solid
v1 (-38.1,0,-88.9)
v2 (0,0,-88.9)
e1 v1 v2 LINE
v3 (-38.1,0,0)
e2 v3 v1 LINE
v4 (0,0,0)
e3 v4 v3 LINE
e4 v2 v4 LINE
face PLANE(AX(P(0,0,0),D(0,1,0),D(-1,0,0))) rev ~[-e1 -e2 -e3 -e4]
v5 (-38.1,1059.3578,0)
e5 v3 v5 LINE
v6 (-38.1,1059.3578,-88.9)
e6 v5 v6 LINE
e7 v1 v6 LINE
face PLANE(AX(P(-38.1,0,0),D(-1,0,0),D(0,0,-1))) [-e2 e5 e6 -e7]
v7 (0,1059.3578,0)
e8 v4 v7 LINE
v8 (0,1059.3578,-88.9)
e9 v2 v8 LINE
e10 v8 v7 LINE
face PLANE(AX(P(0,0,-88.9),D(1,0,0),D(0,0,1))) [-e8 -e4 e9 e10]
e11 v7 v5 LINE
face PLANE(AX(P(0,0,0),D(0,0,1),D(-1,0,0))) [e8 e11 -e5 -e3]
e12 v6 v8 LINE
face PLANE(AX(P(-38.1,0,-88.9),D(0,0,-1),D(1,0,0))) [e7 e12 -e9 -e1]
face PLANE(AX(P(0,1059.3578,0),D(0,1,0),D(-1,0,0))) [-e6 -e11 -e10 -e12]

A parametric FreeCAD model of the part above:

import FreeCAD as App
import Part
import Sketcher
Q = App.Units.Quantity

doc = App.newDocument("Part")
params = doc.addObject("Spreadsheet::Sheet", "Params")
for row, (alias, value) in enumerate([
    ("sketch1_width", "1.5 in"),
    ("sketch1_height", "3.5 in"),
    ("pad1_length", "41.707 in"),
], start=1):
    params.set(f"A{row}", alias)
    params.set(f"B{row}", "=" + value)
    params.setAlias(f"B{row}", alias)

body = doc.addObject("PartDesign::Body", "Body")

# Sketch on XZ plane
sketch1 = body.newObject("Sketcher::SketchObject", "Sketch")
sketch1.AttachmentSupport = (doc.getObject("XZ_Plane"), [""])
sketch1.MapMode = "FlatFace"
sketch1.addGeometry(Part.LineSegment(App.Vector(-38, 0, 0), App.Vector(0, 0, 0)), False)
sketch1.addGeometry(Part.LineSegment(App.Vector(0, 0, 0), App.Vector(0, -89, 0)), False)
sketch1.addGeometry(Part.LineSegment(App.Vector(0, -89, 0), App.Vector(-38, -89, 0)), False)
sketch1.addGeometry(Part.LineSegment(App.Vector(-38, -89, 0), App.Vector(-38, 0, 0)), False)
sketch1.addConstraint(Sketcher.Constraint("Coincident", 0, 2, 1, 1))
sketch1.addConstraint(Sketcher.Constraint("Coincident", 1, 2, 2, 1))
sketch1.addConstraint(Sketcher.Constraint("Coincident", 2, 2, 3, 1))
sketch1.addConstraint(Sketcher.Constraint("Coincident", 3, 2, 0, 1))
sketch1.addConstraint(Sketcher.Constraint("Horizontal", 0))
sketch1.addConstraint(Sketcher.Constraint("Vertical", 1))
sketch1.addConstraint(Sketcher.Constraint("Horizontal", 2))
sketch1.addConstraint(Sketcher.Constraint("Vertical", 3))
sketch1.addConstraint(Sketcher.Constraint("Coincident", 0, 2, -1, 1))
sketch1.addConstraint(Sketcher.Constraint("DistanceX", 0, 1, 0, 2, Q("1.5 in")))
sketch1.addConstraint(Sketcher.Constraint("DistanceY", 1, 2, 1, 1, Q("3.5 in")))
sketch1.setExpression("Constraints[9]", "Params.sketch1_width")
sketch1.setExpression("Constraints[10]", "Params.sketch1_height")
pad1 = body.newObject("PartDesign::Pad", "Pad")
pad1.Profile = sketch1
pad1.setExpression("Length", "Params.pad1_length")
pad1.Reversed = True

doc.recompute()
